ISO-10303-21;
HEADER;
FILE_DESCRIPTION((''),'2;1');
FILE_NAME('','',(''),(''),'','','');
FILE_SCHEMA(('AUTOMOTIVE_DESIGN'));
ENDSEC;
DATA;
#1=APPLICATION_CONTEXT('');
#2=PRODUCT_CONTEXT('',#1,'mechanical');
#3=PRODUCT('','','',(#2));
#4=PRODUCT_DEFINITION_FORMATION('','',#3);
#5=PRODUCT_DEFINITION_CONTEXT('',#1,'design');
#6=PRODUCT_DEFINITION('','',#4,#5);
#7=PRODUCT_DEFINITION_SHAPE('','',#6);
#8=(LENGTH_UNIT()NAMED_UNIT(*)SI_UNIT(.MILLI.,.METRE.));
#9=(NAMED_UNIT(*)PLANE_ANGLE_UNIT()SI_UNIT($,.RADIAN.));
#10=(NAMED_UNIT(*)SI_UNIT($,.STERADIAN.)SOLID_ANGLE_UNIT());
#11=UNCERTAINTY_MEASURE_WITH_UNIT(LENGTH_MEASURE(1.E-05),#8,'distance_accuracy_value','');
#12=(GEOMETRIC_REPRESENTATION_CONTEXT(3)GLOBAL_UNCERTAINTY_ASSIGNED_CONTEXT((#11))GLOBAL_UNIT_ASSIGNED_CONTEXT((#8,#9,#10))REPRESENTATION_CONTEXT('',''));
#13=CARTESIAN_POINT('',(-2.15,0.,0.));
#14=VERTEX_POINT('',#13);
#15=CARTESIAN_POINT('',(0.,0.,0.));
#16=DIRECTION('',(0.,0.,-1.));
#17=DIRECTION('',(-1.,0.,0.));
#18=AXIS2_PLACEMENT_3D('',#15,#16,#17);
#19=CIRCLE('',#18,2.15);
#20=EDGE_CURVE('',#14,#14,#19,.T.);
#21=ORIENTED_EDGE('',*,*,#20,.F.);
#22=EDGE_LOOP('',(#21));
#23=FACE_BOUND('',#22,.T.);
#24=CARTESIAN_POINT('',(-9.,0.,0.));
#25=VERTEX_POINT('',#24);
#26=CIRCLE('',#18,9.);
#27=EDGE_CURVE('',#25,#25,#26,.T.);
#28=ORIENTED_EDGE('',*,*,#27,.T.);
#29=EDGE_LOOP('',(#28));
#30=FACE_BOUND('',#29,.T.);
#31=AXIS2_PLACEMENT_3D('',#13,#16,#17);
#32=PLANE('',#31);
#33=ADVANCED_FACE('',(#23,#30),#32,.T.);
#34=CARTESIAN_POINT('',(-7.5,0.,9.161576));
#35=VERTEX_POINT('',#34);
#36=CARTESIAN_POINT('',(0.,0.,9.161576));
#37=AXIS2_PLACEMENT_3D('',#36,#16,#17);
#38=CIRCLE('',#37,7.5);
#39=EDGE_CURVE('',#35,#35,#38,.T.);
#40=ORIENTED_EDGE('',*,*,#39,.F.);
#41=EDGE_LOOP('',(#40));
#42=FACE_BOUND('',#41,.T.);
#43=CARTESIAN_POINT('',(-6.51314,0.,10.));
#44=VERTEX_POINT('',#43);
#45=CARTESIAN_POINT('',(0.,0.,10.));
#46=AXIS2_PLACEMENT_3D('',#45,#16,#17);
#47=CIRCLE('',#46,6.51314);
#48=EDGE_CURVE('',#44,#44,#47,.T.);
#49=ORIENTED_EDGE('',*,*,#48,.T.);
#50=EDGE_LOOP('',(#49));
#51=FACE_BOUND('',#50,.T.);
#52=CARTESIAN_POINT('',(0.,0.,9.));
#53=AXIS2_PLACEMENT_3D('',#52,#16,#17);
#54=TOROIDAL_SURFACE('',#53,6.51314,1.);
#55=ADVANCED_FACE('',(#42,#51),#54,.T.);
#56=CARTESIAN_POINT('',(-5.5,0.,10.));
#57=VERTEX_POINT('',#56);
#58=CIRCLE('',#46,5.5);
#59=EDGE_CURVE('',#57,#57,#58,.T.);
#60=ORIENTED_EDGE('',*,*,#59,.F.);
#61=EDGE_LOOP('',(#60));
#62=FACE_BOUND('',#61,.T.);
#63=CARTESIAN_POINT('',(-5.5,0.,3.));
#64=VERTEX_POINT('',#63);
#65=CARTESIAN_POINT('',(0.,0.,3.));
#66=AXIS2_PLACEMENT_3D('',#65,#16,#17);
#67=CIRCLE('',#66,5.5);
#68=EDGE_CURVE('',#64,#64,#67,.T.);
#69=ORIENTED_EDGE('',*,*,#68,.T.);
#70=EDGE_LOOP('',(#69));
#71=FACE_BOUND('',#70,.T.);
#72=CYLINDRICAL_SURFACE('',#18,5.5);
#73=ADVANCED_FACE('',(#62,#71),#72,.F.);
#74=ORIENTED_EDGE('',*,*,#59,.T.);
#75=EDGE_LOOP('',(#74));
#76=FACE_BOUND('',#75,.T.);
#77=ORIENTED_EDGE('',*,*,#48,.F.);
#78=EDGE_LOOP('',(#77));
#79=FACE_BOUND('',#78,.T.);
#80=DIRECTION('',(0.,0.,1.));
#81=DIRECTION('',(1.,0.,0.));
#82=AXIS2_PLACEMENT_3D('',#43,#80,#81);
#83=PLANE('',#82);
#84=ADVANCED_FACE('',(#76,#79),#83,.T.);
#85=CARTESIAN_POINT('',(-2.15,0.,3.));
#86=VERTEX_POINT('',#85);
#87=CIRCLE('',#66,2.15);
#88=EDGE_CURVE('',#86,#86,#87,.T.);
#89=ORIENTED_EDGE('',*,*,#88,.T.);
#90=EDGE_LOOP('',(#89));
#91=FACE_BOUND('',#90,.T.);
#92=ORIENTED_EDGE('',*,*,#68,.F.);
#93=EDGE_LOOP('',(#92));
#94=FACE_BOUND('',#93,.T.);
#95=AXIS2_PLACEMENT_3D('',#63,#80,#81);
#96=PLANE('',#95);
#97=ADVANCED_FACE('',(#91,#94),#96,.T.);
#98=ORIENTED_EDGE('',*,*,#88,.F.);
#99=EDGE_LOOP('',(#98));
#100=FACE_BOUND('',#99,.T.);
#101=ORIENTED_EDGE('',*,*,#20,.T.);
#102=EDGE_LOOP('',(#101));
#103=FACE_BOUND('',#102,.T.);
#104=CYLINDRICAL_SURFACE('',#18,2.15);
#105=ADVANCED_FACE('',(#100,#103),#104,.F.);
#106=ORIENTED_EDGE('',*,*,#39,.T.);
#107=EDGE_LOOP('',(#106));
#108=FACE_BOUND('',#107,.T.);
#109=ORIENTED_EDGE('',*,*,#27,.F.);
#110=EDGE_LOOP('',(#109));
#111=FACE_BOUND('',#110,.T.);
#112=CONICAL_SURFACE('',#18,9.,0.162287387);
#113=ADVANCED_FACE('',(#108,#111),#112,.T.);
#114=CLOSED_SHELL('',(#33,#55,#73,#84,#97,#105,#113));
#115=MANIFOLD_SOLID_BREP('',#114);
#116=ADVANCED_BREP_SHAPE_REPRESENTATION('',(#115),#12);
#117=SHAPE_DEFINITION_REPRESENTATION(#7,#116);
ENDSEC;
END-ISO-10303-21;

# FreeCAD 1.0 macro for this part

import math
import FreeCAD as App
import Part
import Sketcher
from FreeCAD import Vector

doc = App.newDocument("Part")
params = doc.addObject("Spreadsheet::Sheet", "Params")
for row, (alias, value) in enumerate([
    ("sketch1_radius", "1 mm"),
    ("sketch1_height", "7 mm"),
    ("sketch1_height2", "3 mm"),
    ("sketch1_width", "6.85 mm"),
    ("sketch1_width2", "3.35 mm"),
    ("revolution_angle", "360 deg"),
], start=1):
    params.set(f"A{row}", alias)
    params.set(f"B{row}", "=" + value)
    params.setAlias(f"B{row}", alias)

body = doc.addObject("PartDesign::Body", "Body")

# Sketch on XZ plane
sketch1 = doc.addObject("Sketcher::SketchObject", "Sketch")
body.addObject(sketch1)
sketch1.AttachmentSupport = (doc.XZ_Plane, [""])
sketch1.MapMode = "FlatFace"
sketch1.addGeometry(Part.LineSegment(Vector(-2.1, 0, 0), Vector(-9, 0, 0)), False)
sketch1.addGeometry(Part.LineSegment(Vector(-9, 0, 0), Vector(-7.5, 9.2, 0)), False)
sketch1.addGeometry(Part.ArcOfCircle(Part.Circle(Vector(-6.5, 9, 0), Vector(0, 0, 1), 1), math.radians(90), math.radians(171)), False)
sketch1.addGeometry(Part.LineSegment(Vector(-6.5, 10, 0), Vector(-5.5, 10, 0)), False)
sketch1.addGeometry(Part.LineSegment(Vector(-5.5, 10, 0), Vector(-5.5, 3, 0)), False)
sketch1.addGeometry(Part.LineSegment(Vector(-5.5, 3, 0), Vector(-2.1, 3, 0)), False)
sketch1.addGeometry(Part.LineSegment(Vector(-2.1, 3, 0), Vector(-2.1, 0, 0)), False)
sketch1.addConstraint(Sketcher.Constraint("Coincident", 0, 2, 1, 1))
sketch1.addConstraint(Sketcher.Constraint("Tangent", 1, 2, 2, 2))
sketch1.addConstraint(Sketcher.Constraint("Tangent", 2, 1, 3, 1))
sketch1.addConstraint(Sketcher.Constraint("Coincident", 3, 2, 4, 1))
sketch1.addConstraint(Sketcher.Constraint("Coincident", 4, 2, 5, 1))
sketch1.addConstraint(Sketcher.Constraint("Coincident", 5, 2, 6, 1))
sketch1.addConstraint(Sketcher.Constraint("Coincident", 6, 2, 0, 1))
sketch1.addConstraint(Sketcher.Constraint("Horizontal", 0))
sketch1.addConstraint(Sketcher.Constraint("Horizontal", 3))
sketch1.addConstraint(Sketcher.Constraint("Vertical", 4))
sketch1.addConstraint(Sketcher.Constraint("Horizontal", 5))
sketch1.addConstraint(Sketcher.Constraint("Vertical", 6))
sketch1.addConstraint(Sketcher.Constraint("PointOnObject", 0, 2, -1))
sketch1.addConstraint(Sketcher.Constraint("Radius", 2, 1.0))
sketch1.addConstraint(Sketcher.Constraint("DistanceY", 4, 2, 4, 1, 7.0))
sketch1.addConstraint(Sketcher.Constraint("DistanceY", 6, 2, 6, 1, 3.0))
sketch1.addConstraint(Sketcher.Constraint("DistanceX", 0, 2, -1, 1, 9.0))
sketch1.addConstraint(Sketcher.Constraint("DistanceX", 1, 2, 3, 2, 2.0))
sketch1.addConstraint(Sketcher.Constraint("DistanceX", 0, 2, 0, 1, 6.85))
sketch1.addConstraint(Sketcher.Constraint("DistanceX", 5, 1, 5, 2, 3.35))
sketch1.setExpression("Constraints[13]", "Params.sketch1_radius")
sketch1.setExpression("Constraints[14]", "Params.sketch1_height")
sketch1.setExpression("Constraints[15]", "Params.sketch1_height2")
sketch1.setExpression("Constraints[18]", "Params.sketch1_width")
sketch1.setExpression("Constraints[19]", "Params.sketch1_width2")
revolution = doc.addObject("PartDesign::Revolution", "Revolution")
body.addObject(revolution)
revolution.Profile = sketch1
revolution.ReferenceAxis = (sketch1, ["V_Axis"])
revolution.setExpression("Angle", "Params.revolution_angle")

doc.recompute()
